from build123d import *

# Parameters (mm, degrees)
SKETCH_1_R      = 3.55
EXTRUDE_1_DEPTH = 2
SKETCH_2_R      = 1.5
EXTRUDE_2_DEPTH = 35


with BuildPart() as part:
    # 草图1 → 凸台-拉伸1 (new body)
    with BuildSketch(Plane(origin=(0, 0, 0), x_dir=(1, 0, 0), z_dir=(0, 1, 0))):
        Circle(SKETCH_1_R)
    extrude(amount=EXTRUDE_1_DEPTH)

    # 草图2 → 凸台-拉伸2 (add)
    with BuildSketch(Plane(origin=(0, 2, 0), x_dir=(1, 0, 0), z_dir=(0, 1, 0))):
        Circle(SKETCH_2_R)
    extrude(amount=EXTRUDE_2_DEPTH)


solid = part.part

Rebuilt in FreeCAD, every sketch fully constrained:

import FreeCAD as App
import Part
import Sketcher

V = App.Vector
Q = App.Units.Quantity

doc = App.newDocument("Part")
body = doc.addObject("PartDesign::Body", "Body")

# Sketch on XZ plane
sketch1 = doc.addObject("Sketcher::SketchObject", "Sketch")
body.addObject(sketch1)
sketch1.AttachmentSupport = (doc.XZ_Plane, [""])
sketch1.MapMode = "FlatFace"
sketch1.addGeometry(Part.Circle(V(0, 0, 0), V(0, 0, 1), 3.55), False)
sketch1.addConstraint([
    Sketcher.Constraint("Coincident", 0, 3, -1, 1),
    Sketcher.Constraint("Diameter", 0, Q("7.1 mm")),
])
pad1 = doc.addObject("PartDesign::Pad", "Pad")
body.addObject(pad1)
pad1.Profile = sketch1
pad1.Length = 2
pad1.Reversed = True

# Sketch on XZ plane
sketch2 = doc.addObject("Sketcher::SketchObject", "Sketch001")
body.addObject(sketch2)
sketch2.AttachmentSupport = (doc.XZ_Plane, [""])
sketch2.MapMode = "FlatFace"
sketch2.AttachmentOffset = App.Placement(V(0, 0, -2), App.Rotation())
sketch2.addGeometry(Part.Circle(V(0, 0, 0), V(0, 0, 1), 1.5), False)
sketch2.addConstraint([
    Sketcher.Constraint("Coincident", 0, 3, -1, 1),
    Sketcher.Constraint("Diameter", 0, Q("3 mm")),
])
pad2 = doc.addObject("PartDesign::Pad", "Pad001")
body.addObject(pad2)
pad2.Profile = sketch2
pad2.Length = 35
pad2.Reversed = True

doc.recompute()
